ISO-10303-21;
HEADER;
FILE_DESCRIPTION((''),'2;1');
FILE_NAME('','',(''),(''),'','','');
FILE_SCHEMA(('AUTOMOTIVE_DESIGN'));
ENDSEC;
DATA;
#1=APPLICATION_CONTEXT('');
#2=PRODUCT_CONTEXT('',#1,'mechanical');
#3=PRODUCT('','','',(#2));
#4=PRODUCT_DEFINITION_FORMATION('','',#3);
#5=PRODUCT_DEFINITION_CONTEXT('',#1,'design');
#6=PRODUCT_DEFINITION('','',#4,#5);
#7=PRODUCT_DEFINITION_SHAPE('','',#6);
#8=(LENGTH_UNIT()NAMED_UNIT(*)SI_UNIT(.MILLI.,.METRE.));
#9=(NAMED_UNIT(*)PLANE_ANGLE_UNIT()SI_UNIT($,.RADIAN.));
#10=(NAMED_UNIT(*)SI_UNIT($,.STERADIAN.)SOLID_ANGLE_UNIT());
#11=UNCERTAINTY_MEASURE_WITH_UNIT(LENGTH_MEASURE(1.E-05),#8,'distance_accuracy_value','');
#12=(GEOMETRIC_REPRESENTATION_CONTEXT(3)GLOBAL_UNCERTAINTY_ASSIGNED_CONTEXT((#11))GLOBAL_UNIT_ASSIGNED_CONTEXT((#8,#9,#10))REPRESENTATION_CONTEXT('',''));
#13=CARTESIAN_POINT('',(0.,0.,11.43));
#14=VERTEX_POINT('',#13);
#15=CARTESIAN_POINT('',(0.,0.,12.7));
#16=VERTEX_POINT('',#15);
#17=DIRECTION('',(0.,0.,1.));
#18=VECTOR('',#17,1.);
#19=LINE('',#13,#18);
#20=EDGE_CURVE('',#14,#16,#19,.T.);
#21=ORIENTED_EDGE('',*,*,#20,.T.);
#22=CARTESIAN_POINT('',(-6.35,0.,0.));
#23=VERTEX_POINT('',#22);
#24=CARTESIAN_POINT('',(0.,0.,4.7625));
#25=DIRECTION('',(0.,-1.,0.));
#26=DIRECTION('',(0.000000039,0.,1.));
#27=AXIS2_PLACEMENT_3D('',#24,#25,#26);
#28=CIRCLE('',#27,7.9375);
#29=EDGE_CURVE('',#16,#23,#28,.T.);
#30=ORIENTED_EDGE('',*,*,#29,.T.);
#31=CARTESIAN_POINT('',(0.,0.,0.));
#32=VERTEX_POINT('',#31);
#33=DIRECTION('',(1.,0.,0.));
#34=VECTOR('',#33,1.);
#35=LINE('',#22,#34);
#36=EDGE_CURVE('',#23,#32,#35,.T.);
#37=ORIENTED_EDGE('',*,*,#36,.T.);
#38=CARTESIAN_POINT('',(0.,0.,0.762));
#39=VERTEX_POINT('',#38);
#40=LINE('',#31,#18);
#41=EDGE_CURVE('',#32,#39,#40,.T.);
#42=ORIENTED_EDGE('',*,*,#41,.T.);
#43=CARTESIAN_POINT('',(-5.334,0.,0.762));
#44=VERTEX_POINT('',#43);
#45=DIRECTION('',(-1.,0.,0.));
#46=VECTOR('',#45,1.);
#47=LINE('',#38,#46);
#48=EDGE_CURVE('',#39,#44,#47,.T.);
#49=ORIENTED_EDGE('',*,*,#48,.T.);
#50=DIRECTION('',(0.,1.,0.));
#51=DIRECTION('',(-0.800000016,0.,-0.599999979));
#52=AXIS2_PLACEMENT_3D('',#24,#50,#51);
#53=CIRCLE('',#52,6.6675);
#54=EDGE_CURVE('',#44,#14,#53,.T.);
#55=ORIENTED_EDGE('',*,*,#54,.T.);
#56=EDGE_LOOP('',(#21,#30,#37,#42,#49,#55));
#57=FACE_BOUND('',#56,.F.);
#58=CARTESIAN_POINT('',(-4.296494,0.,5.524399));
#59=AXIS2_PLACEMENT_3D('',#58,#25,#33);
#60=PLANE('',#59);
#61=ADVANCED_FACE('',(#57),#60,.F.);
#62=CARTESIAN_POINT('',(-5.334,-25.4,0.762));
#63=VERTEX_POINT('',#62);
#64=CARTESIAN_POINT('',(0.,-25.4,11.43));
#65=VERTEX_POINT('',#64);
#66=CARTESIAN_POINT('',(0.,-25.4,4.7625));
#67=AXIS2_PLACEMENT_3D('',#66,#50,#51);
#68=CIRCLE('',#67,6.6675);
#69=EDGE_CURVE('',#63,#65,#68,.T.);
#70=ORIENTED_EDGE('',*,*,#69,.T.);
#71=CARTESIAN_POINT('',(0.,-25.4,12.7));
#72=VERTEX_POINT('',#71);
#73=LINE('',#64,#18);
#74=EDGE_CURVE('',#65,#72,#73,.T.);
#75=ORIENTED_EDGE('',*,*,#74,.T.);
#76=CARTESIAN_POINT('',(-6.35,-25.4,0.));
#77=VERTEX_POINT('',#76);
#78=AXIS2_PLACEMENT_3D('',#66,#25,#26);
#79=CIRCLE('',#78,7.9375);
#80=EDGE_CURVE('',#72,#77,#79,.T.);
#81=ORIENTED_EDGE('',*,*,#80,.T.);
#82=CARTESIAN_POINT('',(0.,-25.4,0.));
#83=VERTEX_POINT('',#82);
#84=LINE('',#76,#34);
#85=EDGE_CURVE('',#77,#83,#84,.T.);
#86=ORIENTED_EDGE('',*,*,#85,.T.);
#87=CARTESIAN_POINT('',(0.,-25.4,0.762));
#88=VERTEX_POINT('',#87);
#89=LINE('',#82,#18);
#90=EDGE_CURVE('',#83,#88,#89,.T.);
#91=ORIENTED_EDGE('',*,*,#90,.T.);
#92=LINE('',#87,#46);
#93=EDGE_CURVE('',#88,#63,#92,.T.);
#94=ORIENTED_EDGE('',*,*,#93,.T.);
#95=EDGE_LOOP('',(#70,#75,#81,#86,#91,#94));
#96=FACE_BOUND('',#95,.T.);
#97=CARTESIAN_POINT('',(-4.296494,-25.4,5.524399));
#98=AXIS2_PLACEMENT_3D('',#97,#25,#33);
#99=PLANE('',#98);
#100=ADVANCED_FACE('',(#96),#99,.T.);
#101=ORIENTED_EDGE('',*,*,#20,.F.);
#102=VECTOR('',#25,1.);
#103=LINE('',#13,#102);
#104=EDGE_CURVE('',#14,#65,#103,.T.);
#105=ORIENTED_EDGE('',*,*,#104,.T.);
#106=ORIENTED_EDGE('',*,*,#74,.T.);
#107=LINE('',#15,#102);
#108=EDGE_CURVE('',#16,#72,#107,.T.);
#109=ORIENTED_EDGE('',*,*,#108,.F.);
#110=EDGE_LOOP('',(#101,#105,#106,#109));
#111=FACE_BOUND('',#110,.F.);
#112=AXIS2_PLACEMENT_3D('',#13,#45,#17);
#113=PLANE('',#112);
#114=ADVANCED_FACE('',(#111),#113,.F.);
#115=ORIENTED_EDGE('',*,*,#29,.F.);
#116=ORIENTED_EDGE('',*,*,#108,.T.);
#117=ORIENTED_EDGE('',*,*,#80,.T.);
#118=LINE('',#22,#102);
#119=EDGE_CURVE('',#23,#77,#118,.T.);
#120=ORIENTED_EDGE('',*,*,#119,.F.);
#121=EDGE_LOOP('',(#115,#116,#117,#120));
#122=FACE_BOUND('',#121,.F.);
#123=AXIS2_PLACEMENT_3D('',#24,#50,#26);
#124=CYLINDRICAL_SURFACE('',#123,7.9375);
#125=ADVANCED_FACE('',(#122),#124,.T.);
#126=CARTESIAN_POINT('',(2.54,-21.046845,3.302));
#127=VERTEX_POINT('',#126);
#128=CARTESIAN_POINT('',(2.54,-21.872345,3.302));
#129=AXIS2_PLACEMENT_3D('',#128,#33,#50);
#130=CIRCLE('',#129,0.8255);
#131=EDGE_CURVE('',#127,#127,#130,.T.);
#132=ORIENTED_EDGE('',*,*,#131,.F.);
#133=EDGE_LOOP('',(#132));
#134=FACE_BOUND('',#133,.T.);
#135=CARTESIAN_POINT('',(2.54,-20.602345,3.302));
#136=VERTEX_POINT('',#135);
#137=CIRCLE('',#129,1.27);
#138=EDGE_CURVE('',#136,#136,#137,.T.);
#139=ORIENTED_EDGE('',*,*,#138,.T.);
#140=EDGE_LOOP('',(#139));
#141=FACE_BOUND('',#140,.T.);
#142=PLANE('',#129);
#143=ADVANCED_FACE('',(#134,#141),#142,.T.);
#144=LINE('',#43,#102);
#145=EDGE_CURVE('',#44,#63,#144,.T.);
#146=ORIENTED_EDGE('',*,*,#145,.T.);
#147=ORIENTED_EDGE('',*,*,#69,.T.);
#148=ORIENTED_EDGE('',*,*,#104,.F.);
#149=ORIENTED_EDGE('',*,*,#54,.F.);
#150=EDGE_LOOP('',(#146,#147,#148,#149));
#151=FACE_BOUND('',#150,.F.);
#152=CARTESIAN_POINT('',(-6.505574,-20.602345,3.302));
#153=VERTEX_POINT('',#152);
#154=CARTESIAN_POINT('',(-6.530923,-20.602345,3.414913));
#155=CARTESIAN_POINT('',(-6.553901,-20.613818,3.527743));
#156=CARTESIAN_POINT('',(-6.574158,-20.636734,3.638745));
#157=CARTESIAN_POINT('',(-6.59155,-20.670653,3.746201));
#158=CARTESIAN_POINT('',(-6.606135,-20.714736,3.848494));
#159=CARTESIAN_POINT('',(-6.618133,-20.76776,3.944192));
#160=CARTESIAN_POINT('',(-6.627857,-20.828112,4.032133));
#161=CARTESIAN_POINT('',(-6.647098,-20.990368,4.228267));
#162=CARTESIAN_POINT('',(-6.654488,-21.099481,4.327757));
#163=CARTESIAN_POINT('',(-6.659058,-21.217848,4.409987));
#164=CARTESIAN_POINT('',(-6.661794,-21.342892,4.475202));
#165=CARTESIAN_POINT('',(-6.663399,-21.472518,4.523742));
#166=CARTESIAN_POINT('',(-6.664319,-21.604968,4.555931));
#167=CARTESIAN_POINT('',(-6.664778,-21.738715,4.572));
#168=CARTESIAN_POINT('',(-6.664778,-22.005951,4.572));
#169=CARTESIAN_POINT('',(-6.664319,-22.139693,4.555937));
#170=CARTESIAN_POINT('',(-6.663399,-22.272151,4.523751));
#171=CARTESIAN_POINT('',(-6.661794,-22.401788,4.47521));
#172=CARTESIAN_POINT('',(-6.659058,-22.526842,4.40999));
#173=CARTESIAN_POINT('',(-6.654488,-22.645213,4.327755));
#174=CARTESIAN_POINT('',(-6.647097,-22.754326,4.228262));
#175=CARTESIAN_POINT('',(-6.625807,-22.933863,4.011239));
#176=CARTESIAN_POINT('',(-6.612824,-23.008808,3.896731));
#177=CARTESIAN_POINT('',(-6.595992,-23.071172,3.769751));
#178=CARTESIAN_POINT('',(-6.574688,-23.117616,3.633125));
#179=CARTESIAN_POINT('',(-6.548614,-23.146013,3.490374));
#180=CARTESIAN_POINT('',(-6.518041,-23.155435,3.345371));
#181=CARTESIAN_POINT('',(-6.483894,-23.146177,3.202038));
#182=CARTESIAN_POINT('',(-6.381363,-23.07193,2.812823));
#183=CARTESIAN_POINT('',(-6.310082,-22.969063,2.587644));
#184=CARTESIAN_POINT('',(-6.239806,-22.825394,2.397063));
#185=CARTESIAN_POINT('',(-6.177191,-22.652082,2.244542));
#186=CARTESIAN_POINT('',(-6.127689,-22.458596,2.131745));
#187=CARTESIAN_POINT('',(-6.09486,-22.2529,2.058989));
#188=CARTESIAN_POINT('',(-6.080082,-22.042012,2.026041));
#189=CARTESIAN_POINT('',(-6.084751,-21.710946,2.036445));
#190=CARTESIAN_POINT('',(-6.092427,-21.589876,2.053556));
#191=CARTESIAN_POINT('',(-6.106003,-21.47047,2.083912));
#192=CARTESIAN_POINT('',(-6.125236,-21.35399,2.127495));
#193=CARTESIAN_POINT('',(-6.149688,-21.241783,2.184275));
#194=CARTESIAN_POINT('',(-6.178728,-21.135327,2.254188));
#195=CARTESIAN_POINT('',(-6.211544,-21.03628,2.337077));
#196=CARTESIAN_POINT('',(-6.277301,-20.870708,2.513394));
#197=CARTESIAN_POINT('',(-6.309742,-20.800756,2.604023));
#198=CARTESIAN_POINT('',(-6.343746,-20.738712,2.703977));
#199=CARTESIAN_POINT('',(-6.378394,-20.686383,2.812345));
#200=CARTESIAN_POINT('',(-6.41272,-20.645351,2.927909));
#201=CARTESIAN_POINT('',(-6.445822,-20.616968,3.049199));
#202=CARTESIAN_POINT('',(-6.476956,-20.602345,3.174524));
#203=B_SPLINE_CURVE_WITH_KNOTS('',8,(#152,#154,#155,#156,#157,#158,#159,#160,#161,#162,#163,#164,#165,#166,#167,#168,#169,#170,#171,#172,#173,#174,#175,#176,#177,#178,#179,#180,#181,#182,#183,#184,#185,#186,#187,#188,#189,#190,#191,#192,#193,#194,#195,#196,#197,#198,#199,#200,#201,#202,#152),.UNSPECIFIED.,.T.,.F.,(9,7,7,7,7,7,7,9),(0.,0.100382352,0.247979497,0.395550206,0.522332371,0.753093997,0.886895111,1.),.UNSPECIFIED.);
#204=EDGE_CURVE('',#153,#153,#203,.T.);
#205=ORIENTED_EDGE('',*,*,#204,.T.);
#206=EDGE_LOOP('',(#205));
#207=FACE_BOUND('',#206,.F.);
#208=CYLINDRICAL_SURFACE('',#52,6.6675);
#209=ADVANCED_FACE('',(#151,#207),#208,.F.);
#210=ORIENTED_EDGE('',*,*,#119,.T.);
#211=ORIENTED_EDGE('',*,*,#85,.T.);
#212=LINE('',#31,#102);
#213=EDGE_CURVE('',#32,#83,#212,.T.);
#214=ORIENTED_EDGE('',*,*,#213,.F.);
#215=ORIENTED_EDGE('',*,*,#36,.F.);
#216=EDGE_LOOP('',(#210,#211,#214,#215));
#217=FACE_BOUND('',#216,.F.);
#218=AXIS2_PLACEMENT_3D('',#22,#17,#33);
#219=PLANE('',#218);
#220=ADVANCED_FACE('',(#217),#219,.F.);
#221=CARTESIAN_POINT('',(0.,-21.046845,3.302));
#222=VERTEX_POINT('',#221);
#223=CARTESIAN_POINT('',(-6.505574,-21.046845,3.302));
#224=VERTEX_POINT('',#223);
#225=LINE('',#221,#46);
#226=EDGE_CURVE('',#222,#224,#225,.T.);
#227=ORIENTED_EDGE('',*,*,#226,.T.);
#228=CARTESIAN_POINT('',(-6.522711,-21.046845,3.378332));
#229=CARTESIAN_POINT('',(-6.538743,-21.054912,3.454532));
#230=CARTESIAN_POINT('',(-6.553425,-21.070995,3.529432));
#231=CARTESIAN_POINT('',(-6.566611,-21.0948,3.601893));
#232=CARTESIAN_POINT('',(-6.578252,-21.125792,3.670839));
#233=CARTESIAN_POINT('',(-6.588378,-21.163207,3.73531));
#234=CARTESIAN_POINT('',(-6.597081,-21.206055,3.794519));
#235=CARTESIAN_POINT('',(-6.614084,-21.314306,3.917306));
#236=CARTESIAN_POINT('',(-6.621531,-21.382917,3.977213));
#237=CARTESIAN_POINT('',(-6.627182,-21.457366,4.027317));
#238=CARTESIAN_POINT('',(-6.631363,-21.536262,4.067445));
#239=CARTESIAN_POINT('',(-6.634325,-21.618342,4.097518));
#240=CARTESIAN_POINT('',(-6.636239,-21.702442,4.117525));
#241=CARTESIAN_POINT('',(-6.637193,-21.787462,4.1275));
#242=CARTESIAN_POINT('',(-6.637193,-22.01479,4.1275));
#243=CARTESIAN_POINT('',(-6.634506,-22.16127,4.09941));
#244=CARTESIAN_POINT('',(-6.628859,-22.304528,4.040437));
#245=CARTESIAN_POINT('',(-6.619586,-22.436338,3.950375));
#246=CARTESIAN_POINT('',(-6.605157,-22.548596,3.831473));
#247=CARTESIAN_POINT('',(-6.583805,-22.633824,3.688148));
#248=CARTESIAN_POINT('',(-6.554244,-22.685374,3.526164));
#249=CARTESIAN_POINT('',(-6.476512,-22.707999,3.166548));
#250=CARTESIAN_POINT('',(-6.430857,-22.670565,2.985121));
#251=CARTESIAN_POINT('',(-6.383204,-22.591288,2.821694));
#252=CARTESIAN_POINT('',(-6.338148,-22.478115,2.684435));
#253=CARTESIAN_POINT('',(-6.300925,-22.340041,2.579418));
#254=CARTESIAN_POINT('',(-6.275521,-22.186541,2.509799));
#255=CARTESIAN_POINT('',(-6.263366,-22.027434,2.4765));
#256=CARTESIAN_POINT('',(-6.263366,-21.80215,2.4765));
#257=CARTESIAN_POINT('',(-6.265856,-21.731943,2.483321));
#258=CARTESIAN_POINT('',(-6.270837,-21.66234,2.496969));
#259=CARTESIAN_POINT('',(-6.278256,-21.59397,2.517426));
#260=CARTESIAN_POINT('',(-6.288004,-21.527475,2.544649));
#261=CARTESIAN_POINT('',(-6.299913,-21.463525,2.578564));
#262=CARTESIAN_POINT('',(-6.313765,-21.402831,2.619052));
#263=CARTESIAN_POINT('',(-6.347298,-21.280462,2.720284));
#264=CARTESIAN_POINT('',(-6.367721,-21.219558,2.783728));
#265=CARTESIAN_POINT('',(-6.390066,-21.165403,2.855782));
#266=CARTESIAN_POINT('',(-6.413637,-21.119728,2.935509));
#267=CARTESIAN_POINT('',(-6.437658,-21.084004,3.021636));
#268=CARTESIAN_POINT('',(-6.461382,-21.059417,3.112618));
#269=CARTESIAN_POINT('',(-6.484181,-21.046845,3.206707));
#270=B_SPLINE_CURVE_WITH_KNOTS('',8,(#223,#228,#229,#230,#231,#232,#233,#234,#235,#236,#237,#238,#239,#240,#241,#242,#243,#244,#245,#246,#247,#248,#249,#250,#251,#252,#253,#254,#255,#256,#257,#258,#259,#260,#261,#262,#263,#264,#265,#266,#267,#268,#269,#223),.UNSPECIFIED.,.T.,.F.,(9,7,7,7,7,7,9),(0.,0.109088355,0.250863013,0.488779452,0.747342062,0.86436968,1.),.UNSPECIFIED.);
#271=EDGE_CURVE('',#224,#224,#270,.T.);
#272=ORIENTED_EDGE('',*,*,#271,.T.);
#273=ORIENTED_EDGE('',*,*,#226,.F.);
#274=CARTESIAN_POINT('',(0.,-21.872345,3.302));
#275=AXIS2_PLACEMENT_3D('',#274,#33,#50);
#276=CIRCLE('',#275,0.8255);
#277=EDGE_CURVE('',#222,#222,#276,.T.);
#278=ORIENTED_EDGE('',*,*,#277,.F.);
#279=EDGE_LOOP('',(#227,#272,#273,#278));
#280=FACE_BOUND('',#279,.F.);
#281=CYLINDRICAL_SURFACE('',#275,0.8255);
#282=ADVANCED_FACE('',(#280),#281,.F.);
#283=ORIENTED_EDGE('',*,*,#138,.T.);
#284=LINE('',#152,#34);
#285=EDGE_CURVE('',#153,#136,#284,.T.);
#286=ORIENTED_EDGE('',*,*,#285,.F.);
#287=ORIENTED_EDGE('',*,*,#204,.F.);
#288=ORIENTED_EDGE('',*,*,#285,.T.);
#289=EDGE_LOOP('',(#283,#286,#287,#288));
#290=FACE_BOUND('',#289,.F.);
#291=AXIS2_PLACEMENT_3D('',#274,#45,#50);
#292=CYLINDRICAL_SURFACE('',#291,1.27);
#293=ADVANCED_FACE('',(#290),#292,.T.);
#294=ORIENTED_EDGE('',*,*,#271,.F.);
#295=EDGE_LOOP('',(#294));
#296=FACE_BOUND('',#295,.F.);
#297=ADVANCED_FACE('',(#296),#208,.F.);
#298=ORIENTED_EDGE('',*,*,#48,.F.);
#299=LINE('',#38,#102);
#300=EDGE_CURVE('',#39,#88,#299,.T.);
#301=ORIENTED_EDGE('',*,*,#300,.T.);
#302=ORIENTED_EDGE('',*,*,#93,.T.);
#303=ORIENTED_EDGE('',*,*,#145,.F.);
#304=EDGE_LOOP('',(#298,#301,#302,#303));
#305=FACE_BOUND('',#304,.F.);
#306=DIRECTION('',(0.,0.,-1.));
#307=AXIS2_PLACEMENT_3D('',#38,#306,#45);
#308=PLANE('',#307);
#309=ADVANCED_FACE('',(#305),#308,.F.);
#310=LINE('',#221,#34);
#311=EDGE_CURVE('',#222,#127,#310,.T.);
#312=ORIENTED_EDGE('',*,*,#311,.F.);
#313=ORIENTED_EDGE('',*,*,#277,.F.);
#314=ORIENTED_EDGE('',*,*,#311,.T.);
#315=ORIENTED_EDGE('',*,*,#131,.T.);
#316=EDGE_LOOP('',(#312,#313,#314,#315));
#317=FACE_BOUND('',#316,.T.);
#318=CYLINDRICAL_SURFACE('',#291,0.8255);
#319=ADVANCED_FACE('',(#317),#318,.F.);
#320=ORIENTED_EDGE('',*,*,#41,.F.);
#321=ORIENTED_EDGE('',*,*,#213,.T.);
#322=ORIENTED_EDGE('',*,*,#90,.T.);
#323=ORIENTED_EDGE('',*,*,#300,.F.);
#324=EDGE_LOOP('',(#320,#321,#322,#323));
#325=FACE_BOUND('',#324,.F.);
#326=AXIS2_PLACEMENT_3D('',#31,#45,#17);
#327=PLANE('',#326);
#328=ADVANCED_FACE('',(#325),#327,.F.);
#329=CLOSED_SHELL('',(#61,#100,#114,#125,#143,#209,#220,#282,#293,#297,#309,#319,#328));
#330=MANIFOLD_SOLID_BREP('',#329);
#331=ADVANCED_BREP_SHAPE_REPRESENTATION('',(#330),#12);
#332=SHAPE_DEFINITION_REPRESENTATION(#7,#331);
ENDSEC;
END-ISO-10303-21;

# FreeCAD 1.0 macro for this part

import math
import FreeCAD as App
import Part
import Sketcher
Q = App.Units.Quantity

doc = App.newDocument("Part")
body = doc.addObject("PartDesign::Body", "Body")

# Sketch on XZ plane
sketch1 = doc.addObject("Sketcher::SketchObject", "Sketch")
body.addObject(sketch1)
sketch1.AttachmentSupport = (doc.XZ_Plane, [""])
sketch1.MapMode = "FlatFace"
sketch1.addGeometry(Part.LineSegment(App.Vector(-6.3, 0, 0), App.Vector(0, 0, 0)), False)
sketch1.addGeometry(Part.LineSegment(App.Vector(0, 0, 0), App.Vector(0, 0.8, 0)), False)
sketch1.addGeometry(Part.LineSegment(App.Vector(0, 0.8, 0), App.Vector(-5.3, 0.8, 0)), False)
sketch1.addGeometry(Part.ArcOfCircle(Part.Circle(App.Vector(0, 4.8, 0), App.Vector(0, 0, 1), 6.7), math.radians(90), math.radians(217)), False)
sketch1.addGeometry(Part.LineSegment(App.Vector(0, 11.4, 0), App.Vector(0, 12.7, 0)), False)
sketch1.addGeometry(Part.ArcOfCircle(Part.Circle(App.Vector(0, 4.8, 0), App.Vector(0, 0, 1), 7.9), math.radians(90), math.radians(217)), False)
sketch1.addConstraint(Sketcher.Constraint("Coincident", 0, 2, 1, 1))
sketch1.addConstraint(Sketcher.Constraint("Coincident", 1, 2, 2, 1))
sketch1.addConstraint(Sketcher.Constraint("Coincident", 2, 2, 3, 2))
sketch1.addConstraint(Sketcher.Constraint("Coincident", 3, 1, 4, 1))
sketch1.addConstraint(Sketcher.Constraint("Coincident", 4, 2, 5, 1))
sketch1.addConstraint(Sketcher.Constraint("Coincident", 5, 2, 0, 1))
sketch1.addConstraint(Sketcher.Constraint("Horizontal", 0))
sketch1.addConstraint(Sketcher.Constraint("Vertical", 1))
sketch1.addConstraint(Sketcher.Constraint("Horizontal", 2))
sketch1.addConstraint(Sketcher.Constraint("Vertical", 4))
sketch1.addConstraint(Sketcher.Constraint("Coincident", 0, 2, -1, 1))
sketch1.addConstraint(Sketcher.Constraint("Coincident", 5, 3, 3, 3))
sketch1.addConstraint(Sketcher.Constraint("PointOnObject", 3, 3, -2))
sketch1.addConstraint(Sketcher.Constraint("PointOnObject", 3, 1, -2))
sketch1.addConstraint(Sketcher.Constraint("Radius", 5, Q("0.3125 in")))
sketch1.addConstraint(Sketcher.Constraint("DistanceX", 0, 1, 0, 2, Q("0.25 in")))
sketch1.addConstraint(Sketcher.Constraint("DistanceX", 2, 2, 2, 1, Q("0.21 in")))
sketch1.addConstraint(Sketcher.Constraint("DistanceY", 1, 1, 1, 2, Q("0.03 in")))
pad1 = doc.addObject("PartDesign::Pad", "Pad")
body.addObject(pad1)
pad1.Profile = sketch1
pad1.Length = Q("1 in")

# Sketch on YZ plane
sketch2 = doc.addObject("Sketcher::SketchObject", "Sketch001")
body.addObject(sketch2)
sketch2.AttachmentSupport = (doc.YZ_Plane, [""])
sketch2.MapMode = "FlatFace"
sketch2.addGeometry(Part.Circle(App.Vector(-21.9, 3.3, 0), App.Vector(0, 0, 1), 1.3), False)
sketch2.addGeometry(Part.Circle(App.Vector(-21.9, 3.3, 0), App.Vector(0, 0, 1), 0.8), False)
sketch2.addConstraint(Sketcher.Constraint("Coincident", 1, 3, 0, 3))
sketch2.addConstraint(Sketcher.Constraint("Diameter", 0, Q("0.1 in")))
sketch2.addConstraint(Sketcher.Constraint("Diameter", 1, Q("0.065 in")))
sketch2.addConstraint(Sketcher.Constraint("DistanceY", -1, 1, 0, 3, Q("0.13 in")))
sketch2.addConstraint(Sketcher.Constraint("DistanceX", 0, 3, -1, 1, Q("21.872345 mm")))
pad2 = doc.addObject("PartDesign::Pad", "Pad001")
body.addObject(pad2)
pad2.Profile = sketch2
pad2.Length = Q("0.28 in")
pad2.Reversed = True

# Sketch on YZ plane
sketch3 = doc.addObject("Sketcher::SketchObject", "Sketch002")
body.addObject(sketch3)
sketch3.AttachmentSupport = (doc.YZ_Plane, [""])
sketch3.MapMode = "FlatFace"
sketch3.addGeometry(Part.Circle(App.Vector(-21.9, 3.3, 0), App.Vector(0, 0, 1), 1.3), False)
sketch3.addGeometry(Part.Circle(App.Vector(-21.9, 3.3, 0), App.Vector(0, 0, 1), 0.8), False)
sketch3.addConstraint(Sketcher.Constraint("Coincident", 1, 3, 0, 3))
sketch3.addConstraint(Sketcher.Constraint("Diameter", 0, Q("0.1 in")))
sketch3.addConstraint(Sketcher.Constraint("Diameter", 1, Q("0.065 in")))
sketch3.addConstraint(Sketcher.Constraint("DistanceY", -1, 1, 0, 3, Q("0.13 in")))
sketch3.addConstraint(Sketcher.Constraint("DistanceX", 0, 3, -1, 1, Q("21.872345 mm")))
pad3 = doc.addObject("PartDesign::Pad", "Pad002")
body.addObject(pad3)
pad3.Profile = sketch3
pad3.Length = Q("0.1 in")

doc.recompute()
